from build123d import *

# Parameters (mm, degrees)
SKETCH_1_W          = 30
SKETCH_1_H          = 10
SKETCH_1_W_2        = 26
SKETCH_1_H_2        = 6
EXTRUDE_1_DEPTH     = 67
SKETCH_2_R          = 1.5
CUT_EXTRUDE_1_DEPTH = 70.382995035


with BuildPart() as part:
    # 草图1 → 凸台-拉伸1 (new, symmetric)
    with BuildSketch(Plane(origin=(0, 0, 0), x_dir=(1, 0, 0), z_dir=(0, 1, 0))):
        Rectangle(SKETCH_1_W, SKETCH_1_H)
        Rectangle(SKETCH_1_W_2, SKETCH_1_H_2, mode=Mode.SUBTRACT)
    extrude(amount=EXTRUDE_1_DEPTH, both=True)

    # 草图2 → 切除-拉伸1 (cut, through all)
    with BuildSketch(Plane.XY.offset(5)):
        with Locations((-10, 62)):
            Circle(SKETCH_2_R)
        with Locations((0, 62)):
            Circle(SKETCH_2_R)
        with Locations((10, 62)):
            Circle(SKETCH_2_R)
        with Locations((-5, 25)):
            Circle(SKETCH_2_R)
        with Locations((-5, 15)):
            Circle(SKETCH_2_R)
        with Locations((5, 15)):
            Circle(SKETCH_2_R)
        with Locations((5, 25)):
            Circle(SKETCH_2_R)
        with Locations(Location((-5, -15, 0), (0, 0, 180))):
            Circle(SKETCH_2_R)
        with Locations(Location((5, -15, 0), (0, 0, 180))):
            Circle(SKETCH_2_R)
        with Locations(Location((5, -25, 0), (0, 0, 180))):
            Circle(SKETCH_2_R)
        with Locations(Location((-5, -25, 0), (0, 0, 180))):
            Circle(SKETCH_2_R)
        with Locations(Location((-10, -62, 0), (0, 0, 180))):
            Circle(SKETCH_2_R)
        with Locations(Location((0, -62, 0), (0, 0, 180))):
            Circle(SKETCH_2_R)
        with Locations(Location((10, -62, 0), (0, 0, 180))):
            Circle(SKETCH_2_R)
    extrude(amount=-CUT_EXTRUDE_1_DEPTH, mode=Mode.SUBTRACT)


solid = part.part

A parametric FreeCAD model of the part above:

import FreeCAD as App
import Part
import Sketcher
from FreeCAD import Vector


def add_polygon(sketch, points):
    """Adds a closed chain of lines whose ends are joined by coincident constraints."""
    first, n = sketch.GeometryCount, len(points)
    for a, b in zip(points, points[1:] + points[:1]):
        sketch.addGeometry(Part.LineSegment(App.Vector(*a, 0), App.Vector(*b, 0)), False)
    for i in range(n):
        sketch.addConstraint(Sketcher.Constraint("Coincident", first + i, 2, first + (i + 1) % n, 1))

doc = App.newDocument("Part")
body = doc.addObject("PartDesign::Body", "Body")

# Sketch on XZ plane
sketch1 = doc.addObject("Sketcher::SketchObject", "Sketch")
body.addObject(sketch1)
sketch1.AttachmentSupport = (doc.XZ_Plane, [""])
sketch1.MapMode = "FlatFace"
add_polygon(sketch1, [(-15, -5), (-15, 5), (15, 5), (15, -5)])  # lines 0-3
add_polygon(sketch1, [(13, 3), (-13, 3), (-13, -3), (13, -3)])  # lines 4-7
sketch1.addConstraint([
    Sketcher.Constraint("Vertical", 0),
    Sketcher.Constraint("Horizontal", 1),
    Sketcher.Constraint("Vertical", 2),
    Sketcher.Constraint("Horizontal", 3),
    Sketcher.Constraint("Horizontal", 4),
    Sketcher.Constraint("Vertical", 5),
    Sketcher.Constraint("Horizontal", 6),
    Sketcher.Constraint("Vertical", 7),
    Sketcher.Constraint("Symmetric", 0, 2, 2, 2, -1, 1),
    Sketcher.Constraint("Symmetric", 4, 2, 6, 2, -1, 1),
    Sketcher.Constraint("DistanceX", 1, 1, 1, 2, 30.0),
    Sketcher.Constraint("DistanceX", 4, 2, 4, 1, 26.0),
    Sketcher.Constraint("DistanceY", 0, 1, 0, 2, 10.0),
    Sketcher.Constraint("DistanceY", 5, 2, 5, 1, 6.0),
])
pad1 = doc.addObject("PartDesign::Pad", "Pad")
body.addObject(pad1)
pad1.Profile = sketch1
pad1.Length = 134
pad1.Midplane = True

# Sketch on XY plane
sketch2 = doc.addObject("Sketcher::SketchObject", "Sketch001")
body.addObject(sketch2)
sketch2.AttachmentSupport = (doc.XY_Plane, [""])
sketch2.MapMode = "FlatFace"
sketch2.AttachmentOffset = App.Placement(Vector(0, 0, 5), App.Rotation())
sketch2.addGeometry([
    Part.Circle(Vector(-10, 62, 0), Vector(0, 0, 1), 1.5),  # 0
    Part.Circle(Vector(0, 62, 0), Vector(0, 0, 1), 1.5),  # 1
    Part.Circle(Vector(10, 62, 0), Vector(0, 0, 1), 1.5),  # 2
    Part.Circle(Vector(-5, 25, 0), Vector(0, 0, 1), 1.5),  # 3
    Part.Circle(Vector(-5, 15, 0), Vector(0, 0, 1), 1.5),  # 4
    Part.Circle(Vector(5, 15, 0), Vector(0, 0, 1), 1.5),  # 5
    Part.Circle(Vector(5, 25, 0), Vector(0, 0, 1), 1.5),  # 6
    Part.Circle(Vector(-5, -15, 0), Vector(0, 0, 1), 1.5),  # 7
    Part.Circle(Vector(5, -15, 0), Vector(0, 0, 1), 1.5),  # 8
    Part.Circle(Vector(5, -25, 0), Vector(0, 0, 1), 1.5),  # 9
    Part.Circle(Vector(-5, -25, 0), Vector(0, 0, 1), 1.5),  # 10
    Part.Circle(Vector(-10, -62, 0), Vector(0, 0, 1), 1.5),  # 11
    Part.Circle(Vector(0, -62, 0), Vector(0, 0, 1), 1.5),  # 12
    Part.Circle(Vector(10, -62, 0), Vector(0, 0, 1), 1.5),  # 13
], False)
sketch2.addConstraint([
    Sketcher.Constraint("Equal", 0, 1),
    Sketcher.Constraint("Equal", 1, 2),
    Sketcher.Constraint("Equal", 2, 3),
    Sketcher.Constraint("Equal", 3, 4),
    Sketcher.Constraint("Equal", 4, 5),
    Sketcher.Constraint("Equal", 5, 6),
    Sketcher.Constraint("Equal", 6, 7),
    Sketcher.Constraint("Equal", 7, 8),
    Sketcher.Constraint("Equal", 8, 9),
    Sketcher.Constraint("Equal", 9, 10),
    Sketcher.Constraint("Equal", 10, 11),
    Sketcher.Constraint("Equal", 11, 12),
    Sketcher.Constraint("Equal", 12, 13),
    Sketcher.Constraint("Symmetric", 5, 3, 7, 3, -1, 1),
    Sketcher.Constraint("Symmetric", 4, 3, 8, 3, -1, 1),
    Sketcher.Constraint("Symmetric", 3, 3, 9, 3, -1, 1),
    Sketcher.Constraint("Symmetric", 6, 3, 10, 3, -1, 1),
    Sketcher.Constraint("Symmetric", 2, 3, 11, 3, -1, 1),
    Sketcher.Constraint("Symmetric", 1, 3, 12, 3, -1, 1),
    Sketcher.Constraint("Symmetric", 0, 3, 13, 3, -1, 1),
    Sketcher.Constraint("Symmetric", 0, 3, 2, 3, -2),
    Sketcher.Constraint("Symmetric", 4, 3, 5, 3, -2),
    Sketcher.Constraint("Symmetric", 3, 3, 6, 3, -2),
    Sketcher.Constraint("PointOnObject", 1, 3, -2),
    Sketcher.Constraint("Horizontal", 0, 3, 1, 3),
    Sketcher.Constraint("Vertical", 3, 3, 4, 3),
    Sketcher.Constraint("Diameter", 0, 3.0),
    Sketcher.Constraint("DistanceX", 0, 3, -1, 1, 10.0),
    Sketcher.Constraint("DistanceY", -1, 1, 0, 3, 62.0),
    Sketcher.Constraint("DistanceX", 3, 3, -1, 1, 5.0),
    Sketcher.Constraint("DistanceY", -1, 1, 3, 3, 25.0),
    Sketcher.Constraint("DistanceY", -1, 1, 4, 3, 15.0),
])
pocket1 = doc.addObject("PartDesign::Pocket", "Pocket")
body.addObject(pocket1)
pocket1.Profile = sketch2
pocket1.Type = "ThroughAll"

doc.recompute()
